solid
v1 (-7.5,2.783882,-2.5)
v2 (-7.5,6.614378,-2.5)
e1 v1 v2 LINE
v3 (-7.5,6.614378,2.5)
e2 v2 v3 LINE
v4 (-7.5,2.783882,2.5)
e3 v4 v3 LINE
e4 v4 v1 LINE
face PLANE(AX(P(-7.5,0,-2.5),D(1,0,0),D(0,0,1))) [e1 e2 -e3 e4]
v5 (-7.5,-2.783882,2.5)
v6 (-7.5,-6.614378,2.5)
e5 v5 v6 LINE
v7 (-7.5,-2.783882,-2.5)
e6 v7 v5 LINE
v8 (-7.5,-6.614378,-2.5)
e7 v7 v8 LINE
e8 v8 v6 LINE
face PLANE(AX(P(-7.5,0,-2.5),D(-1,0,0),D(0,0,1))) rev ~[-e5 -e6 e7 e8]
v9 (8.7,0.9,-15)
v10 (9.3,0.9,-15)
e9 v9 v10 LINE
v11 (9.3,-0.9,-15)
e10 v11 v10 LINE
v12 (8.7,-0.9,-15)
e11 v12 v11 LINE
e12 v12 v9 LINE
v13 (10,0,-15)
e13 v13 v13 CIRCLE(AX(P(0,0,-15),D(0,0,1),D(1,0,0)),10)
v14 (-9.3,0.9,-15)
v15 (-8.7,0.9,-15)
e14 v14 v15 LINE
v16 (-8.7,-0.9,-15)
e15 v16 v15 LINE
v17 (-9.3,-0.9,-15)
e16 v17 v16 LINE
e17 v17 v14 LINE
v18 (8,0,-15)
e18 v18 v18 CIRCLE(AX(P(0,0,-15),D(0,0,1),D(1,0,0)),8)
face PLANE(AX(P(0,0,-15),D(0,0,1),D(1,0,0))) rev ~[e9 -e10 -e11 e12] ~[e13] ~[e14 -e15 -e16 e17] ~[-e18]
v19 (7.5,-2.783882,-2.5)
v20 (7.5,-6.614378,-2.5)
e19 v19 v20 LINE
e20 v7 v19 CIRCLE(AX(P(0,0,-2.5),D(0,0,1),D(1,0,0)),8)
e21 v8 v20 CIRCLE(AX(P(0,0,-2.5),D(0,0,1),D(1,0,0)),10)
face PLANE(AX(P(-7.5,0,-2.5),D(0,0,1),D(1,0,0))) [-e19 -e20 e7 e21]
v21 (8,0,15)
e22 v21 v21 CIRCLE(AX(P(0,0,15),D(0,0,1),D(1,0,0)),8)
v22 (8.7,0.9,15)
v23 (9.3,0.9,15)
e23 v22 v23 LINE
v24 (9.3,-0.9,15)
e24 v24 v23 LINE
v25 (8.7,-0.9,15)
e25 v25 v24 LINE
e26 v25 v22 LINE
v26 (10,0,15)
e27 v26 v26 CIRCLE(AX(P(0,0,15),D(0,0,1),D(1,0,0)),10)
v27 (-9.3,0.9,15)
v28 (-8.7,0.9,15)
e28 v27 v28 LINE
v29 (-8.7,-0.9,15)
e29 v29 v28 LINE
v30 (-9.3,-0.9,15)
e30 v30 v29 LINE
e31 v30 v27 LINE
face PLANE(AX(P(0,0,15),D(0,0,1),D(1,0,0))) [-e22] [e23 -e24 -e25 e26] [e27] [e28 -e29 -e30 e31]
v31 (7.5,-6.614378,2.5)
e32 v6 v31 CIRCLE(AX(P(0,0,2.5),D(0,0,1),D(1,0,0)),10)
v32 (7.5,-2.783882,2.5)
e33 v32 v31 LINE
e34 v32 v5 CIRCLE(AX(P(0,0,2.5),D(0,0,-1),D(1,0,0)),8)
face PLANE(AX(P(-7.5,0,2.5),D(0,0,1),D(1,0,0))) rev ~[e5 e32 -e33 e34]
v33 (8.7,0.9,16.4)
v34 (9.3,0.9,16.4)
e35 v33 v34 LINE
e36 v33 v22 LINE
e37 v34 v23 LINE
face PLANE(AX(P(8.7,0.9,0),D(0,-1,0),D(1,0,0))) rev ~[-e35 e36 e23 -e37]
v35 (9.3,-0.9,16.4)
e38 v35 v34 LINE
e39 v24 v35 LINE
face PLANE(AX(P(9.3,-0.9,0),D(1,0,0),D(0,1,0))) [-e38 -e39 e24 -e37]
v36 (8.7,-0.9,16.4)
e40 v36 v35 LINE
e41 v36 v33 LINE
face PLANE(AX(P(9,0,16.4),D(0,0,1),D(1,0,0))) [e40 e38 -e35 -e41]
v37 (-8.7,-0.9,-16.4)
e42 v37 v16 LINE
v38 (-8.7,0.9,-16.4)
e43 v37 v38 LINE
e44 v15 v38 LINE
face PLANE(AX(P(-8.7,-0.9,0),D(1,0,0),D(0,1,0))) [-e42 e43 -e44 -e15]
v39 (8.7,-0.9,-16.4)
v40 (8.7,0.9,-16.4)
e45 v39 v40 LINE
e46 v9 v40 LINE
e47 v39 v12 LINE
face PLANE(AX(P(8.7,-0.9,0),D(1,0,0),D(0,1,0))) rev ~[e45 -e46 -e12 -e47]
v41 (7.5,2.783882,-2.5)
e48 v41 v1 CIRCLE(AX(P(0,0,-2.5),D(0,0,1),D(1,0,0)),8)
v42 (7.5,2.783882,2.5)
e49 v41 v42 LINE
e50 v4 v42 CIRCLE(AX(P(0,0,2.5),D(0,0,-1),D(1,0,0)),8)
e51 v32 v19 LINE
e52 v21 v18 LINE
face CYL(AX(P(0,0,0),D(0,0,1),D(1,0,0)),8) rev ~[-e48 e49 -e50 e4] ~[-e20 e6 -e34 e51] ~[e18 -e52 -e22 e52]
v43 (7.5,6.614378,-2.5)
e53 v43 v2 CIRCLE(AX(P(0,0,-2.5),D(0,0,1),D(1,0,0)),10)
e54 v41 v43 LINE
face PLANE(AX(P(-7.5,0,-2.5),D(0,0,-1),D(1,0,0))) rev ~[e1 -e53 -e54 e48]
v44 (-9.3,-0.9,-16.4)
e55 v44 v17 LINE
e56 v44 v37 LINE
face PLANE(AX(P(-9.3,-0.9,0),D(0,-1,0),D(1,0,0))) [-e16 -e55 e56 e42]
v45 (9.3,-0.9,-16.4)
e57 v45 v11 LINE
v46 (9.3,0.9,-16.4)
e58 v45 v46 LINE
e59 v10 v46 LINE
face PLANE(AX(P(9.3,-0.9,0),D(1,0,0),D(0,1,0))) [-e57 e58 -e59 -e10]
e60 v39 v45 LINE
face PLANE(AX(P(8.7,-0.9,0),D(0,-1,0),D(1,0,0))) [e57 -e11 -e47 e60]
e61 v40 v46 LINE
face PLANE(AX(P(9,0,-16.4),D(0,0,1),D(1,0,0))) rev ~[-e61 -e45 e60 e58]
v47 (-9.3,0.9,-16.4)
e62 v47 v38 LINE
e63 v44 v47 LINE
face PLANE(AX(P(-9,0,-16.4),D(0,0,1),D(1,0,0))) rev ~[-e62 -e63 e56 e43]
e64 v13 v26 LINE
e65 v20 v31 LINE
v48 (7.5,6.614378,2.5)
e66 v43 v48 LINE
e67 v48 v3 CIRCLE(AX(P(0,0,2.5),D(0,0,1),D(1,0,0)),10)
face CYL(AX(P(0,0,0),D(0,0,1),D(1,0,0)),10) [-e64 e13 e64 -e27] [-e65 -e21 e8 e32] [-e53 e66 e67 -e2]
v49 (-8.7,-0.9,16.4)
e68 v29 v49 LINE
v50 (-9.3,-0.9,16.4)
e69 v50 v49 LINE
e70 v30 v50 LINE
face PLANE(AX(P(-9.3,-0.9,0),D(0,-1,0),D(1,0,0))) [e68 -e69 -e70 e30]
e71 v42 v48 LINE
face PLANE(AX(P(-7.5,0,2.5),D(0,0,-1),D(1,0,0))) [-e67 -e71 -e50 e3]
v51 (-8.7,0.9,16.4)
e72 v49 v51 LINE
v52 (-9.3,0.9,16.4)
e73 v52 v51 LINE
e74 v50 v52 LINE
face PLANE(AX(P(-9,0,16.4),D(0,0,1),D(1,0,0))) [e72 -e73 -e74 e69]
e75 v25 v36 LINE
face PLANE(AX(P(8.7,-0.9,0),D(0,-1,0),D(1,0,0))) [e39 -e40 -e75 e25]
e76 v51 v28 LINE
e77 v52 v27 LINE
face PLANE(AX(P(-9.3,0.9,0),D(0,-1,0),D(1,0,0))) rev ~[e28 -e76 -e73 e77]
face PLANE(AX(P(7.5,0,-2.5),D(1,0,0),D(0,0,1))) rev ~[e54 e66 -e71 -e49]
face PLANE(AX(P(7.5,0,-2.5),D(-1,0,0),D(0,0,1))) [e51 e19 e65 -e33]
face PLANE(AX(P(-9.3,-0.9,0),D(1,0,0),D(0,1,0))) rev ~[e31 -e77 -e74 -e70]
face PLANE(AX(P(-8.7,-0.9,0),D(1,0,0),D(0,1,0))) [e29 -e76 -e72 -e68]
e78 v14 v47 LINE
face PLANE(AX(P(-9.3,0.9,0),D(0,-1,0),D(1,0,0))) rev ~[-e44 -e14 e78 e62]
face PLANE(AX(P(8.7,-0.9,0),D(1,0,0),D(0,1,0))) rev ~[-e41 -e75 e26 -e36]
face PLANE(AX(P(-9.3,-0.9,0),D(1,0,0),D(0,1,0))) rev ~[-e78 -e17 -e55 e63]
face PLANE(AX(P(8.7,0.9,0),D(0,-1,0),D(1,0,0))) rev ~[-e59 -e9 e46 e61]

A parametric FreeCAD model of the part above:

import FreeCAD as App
import Part
import Sketcher

doc = App.newDocument("Part")
body = doc.addObject("PartDesign::Body", "Body")

# Sketch on XY plane
sketch1 = body.newObject("Sketcher::SketchObject", "Sketch")
sketch1.AttachmentSupport = (doc.getObject("XY_Plane"), [""])
sketch1.MapMode = "FlatFace"
sketch1.addGeometry(Part.LineSegment(App.Vector(-9.3, 0.9, 0), App.Vector(-9.3, -0.9, 0)), False)
sketch1.addGeometry(Part.LineSegment(App.Vector(-9.3, -0.9, 0), App.Vector(-8.7, -0.9, 0)), False)
sketch1.addGeometry(Part.LineSegment(App.Vector(-8.7, -0.9, 0), App.Vector(-8.7, 0.9, 0)), False)
sketch1.addGeometry(Part.LineSegment(App.Vector(-8.7, 0.9, 0), App.Vector(-9.3, 0.9, 0)), False)
sketch1.addConstraint(Sketcher.Constraint("Coincident", 0, 2, 1, 1))
sketch1.addConstraint(Sketcher.Constraint("Coincident", 1, 2, 2, 1))
sketch1.addConstraint(Sketcher.Constraint("Coincident", 2, 2, 3, 1))
sketch1.addConstraint(Sketcher.Constraint("Coincident", 3, 2, 0, 1))
sketch1.addConstraint(Sketcher.Constraint("Vertical", 0))
sketch1.addConstraint(Sketcher.Constraint("Horizontal", 1))
sketch1.addConstraint(Sketcher.Constraint("Vertical", 2))
sketch1.addConstraint(Sketcher.Constraint("Horizontal", 3))
sketch1.addConstraint(Sketcher.Constraint("DistanceX", 1, 1, 1, 2, 0.6))
sketch1.addConstraint(Sketcher.Constraint("DistanceY", 0, 2, 0, 1, 1.8))
sketch1.addConstraint(Sketcher.Constraint("DistanceX", 0, 2, -1, 1, 9.3))
sketch1.addConstraint(Sketcher.Constraint("DistanceY", 0, 2, -1, 1, 0.9))
pad1 = body.newObject("PartDesign::Pad", "Pad")
pad1.Profile = sketch1
pad1.Type = "TwoLengths"
pad1.Length = 16.4
pad1.Length2 = 16.4
body2 = doc.addObject("PartDesign::Body", "Body001")

# Sketch on XY plane
sketch2 = body2.newObject("Sketcher::SketchObject", "Sketch001")
sketch2.AttachmentSupport = (doc.getObject("XY_Plane001"), [""])
sketch2.MapMode = "FlatFace"
sketch2.addGeometry(Part.LineSegment(App.Vector(8.7, 0.9, 0), App.Vector(8.7, -0.9, 0)), False)
sketch2.addGeometry(Part.LineSegment(App.Vector(8.7, -0.9, 0), App.Vector(9.3, -0.9, 0)), False)
sketch2.addGeometry(Part.LineSegment(App.Vector(9.3, -0.9, 0), App.Vector(9.3, 0.9, 0)), False)
sketch2.addGeometry(Part.LineSegment(App.Vector(9.3, 0.9, 0), App.Vector(8.7, 0.9, 0)), False)
sketch2.addConstraint(Sketcher.Constraint("Coincident", 0, 2, 1, 1))
sketch2.addConstraint(Sketcher.Constraint("Coincident", 1, 2, 2, 1))
sketch2.addConstraint(Sketcher.Constraint("Coincident", 2, 2, 3, 1))
sketch2.addConstraint(Sketcher.Constraint("Coincident", 3, 2, 0, 1))
sketch2.addConstraint(Sketcher.Constraint("Vertical", 0))
sketch2.addConstraint(Sketcher.Constraint("Horizontal", 1))
sketch2.addConstraint(Sketcher.Constraint("Vertical", 2))
sketch2.addConstraint(Sketcher.Constraint("Horizontal", 3))
sketch2.addConstraint(Sketcher.Constraint("DistanceX", 1, 1, 1, 2, 0.6))
sketch2.addConstraint(Sketcher.Constraint("DistanceY", 0, 2, 0, 1, 1.8))
sketch2.addConstraint(Sketcher.Constraint("DistanceX", -1, 1, 0, 2, 8.7))
sketch2.addConstraint(Sketcher.Constraint("DistanceY", 0, 2, -1, 1, 0.9))
pad2 = body2.newObject("PartDesign::Pad", "Pad001")
pad2.Profile = sketch2
pad2.Type = "TwoLengths"
pad2.Length = 16.4
pad2.Length2 = 16.4
body.AllowCompound = True
doc.recompute()

boolean = body.newObject("PartDesign::Boolean", "Boolean")
boolean.Type = "Fuse"
boolean.addObjects([body2])

# Sketch on XY plane
sketch3 = body.newObject("Sketcher::SketchObject", "Sketch002")
sketch3.AttachmentSupport = (doc.getObject("XY_Plane"), [""])
sketch3.MapMode = "FlatFace"
sketch3.addGeometry(Part.Circle(App.Vector(0, 0, 0), App.Vector(0, 0, 1), 10), False)
sketch3.addGeometry(Part.LineSegment(App.Vector(-8.7, -0.9, 0), App.Vector(-9.3, -0.9, 0)), False)
sketch3.addGeometry(Part.LineSegment(App.Vector(-9.3, -0.9, 0), App.Vector(-9.3, 0.9, 0)), False)
sketch3.addGeometry(Part.LineSegment(App.Vector(-9.3, 0.9, 0), App.Vector(-8.7, 0.9, 0)), False)
sketch3.addGeometry(Part.LineSegment(App.Vector(-8.7, 0.9, 0), App.Vector(-8.7, -0.9, 0)), False)
sketch3.addGeometry(Part.LineSegment(App.Vector(9.3, -0.9, 0), App.Vector(8.7, -0.9, 0)), False)
sketch3.addGeometry(Part.LineSegment(App.Vector(8.7, -0.9, 0), App.Vector(8.7, 0.9, 0)), False)
sketch3.addGeometry(Part.LineSegment(App.Vector(8.7, 0.9, 0), App.Vector(9.3, 0.9, 0)), False)
sketch3.addGeometry(Part.LineSegment(App.Vector(9.3, 0.9, 0), App.Vector(9.3, -0.9, 0)), False)
sketch3.addGeometry(Part.Circle(App.Vector(0, 0, 0), App.Vector(0, 0, 1), 8), False)
sketch3.addConstraint(Sketcher.Constraint("Coincident", 1, 2, 2, 1))
sketch3.addConstraint(Sketcher.Constraint("Coincident", 2, 2, 3, 1))
sketch3.addConstraint(Sketcher.Constraint("Coincident", 3, 2, 4, 1))
sketch3.addConstraint(Sketcher.Constraint("Coincident", 4, 2, 1, 1))
sketch3.addConstraint(Sketcher.Constraint("Coincident", 5, 2, 6, 1))
sketch3.addConstraint(Sketcher.Constraint("Coincident", 6, 2, 7, 1))
sketch3.addConstraint(Sketcher.Constraint("Coincident", 7, 2, 8, 1))
sketch3.addConstraint(Sketcher.Constraint("Coincident", 8, 2, 5, 1))
sketch3.addConstraint(Sketcher.Constraint("Horizontal", 1))
sketch3.addConstraint(Sketcher.Constraint("Vertical", 2))
sketch3.addConstraint(Sketcher.Constraint("Horizontal", 3))
sketch3.addConstraint(Sketcher.Constraint("Vertical", 4))
sketch3.addConstraint(Sketcher.Constraint("Horizontal", 5))
sketch3.addConstraint(Sketcher.Constraint("Vertical", 6))
sketch3.addConstraint(Sketcher.Constraint("Horizontal", 7))
sketch3.addConstraint(Sketcher.Constraint("Vertical", 8))
sketch3.addConstraint(Sketcher.Constraint("Coincident", 0, 3, -1, 1))
sketch3.addConstraint(Sketcher.Constraint("Coincident", 9, 3, -1, 1))
sketch3.addConstraint(Sketcher.Constraint("Symmetric", 3, 2, 5, 2, -1, 1))
sketch3.addConstraint(Sketcher.Constraint("Symmetric", 1, 2, 7, 2, -1, 1))
sketch3.addConstraint(Sketcher.Constraint("Horizontal", 4, 2, 5, 2))
sketch3.addConstraint(Sketcher.Constraint("Diameter", 0, 20.0))
sketch3.addConstraint(Sketcher.Constraint("Diameter", 9, 16.0))
sketch3.addConstraint(Sketcher.Constraint("DistanceX", 1, 2, 1, 1, 0.6))
sketch3.addConstraint(Sketcher.Constraint("DistanceY", 2, 1, 2, 2, 1.8))
sketch3.addConstraint(Sketcher.Constraint("DistanceX", 1, 2, 5, 2, 18.0))
pad3 = body.newObject("PartDesign::Pad", "Pad002")
pad3.Profile = sketch3
pad3.Type = "TwoLengths"
pad3.Length = 15
pad3.Length2 = 15

# Sketch on XZ plane
sketch4 = body.newObject("Sketcher::SketchObject", "Sketch003")
sketch4.AttachmentSupport = (doc.getObject("XZ_Plane"), [""])
sketch4.MapMode = "FlatFace"
sketch4.addGeometry(Part.LineSegment(App.Vector(-7.5, 2.5, 0), App.Vector(-7.5, -2.5, 0)), False)
sketch4.addGeometry(Part.LineSegment(App.Vector(-7.5, -2.5, 0), App.Vector(7.5, -2.5, 0)), False)
sketch4.addGeometry(Part.LineSegment(App.Vector(7.5, -2.5, 0), App.Vector(7.5, 2.5, 0)), False)
sketch4.addGeometry(Part.LineSegment(App.Vector(7.5, 2.5, 0), App.Vector(-7.5, 2.5, 0)), False)
sketch4.addConstraint(Sketcher.Constraint("Coincident", 0, 2, 1, 1))
sketch4.addConstraint(Sketcher.Constraint("Coincident", 1, 2, 2, 1))
sketch4.addConstraint(Sketcher.Constraint("Coincident", 2, 2, 3, 1))
sketch4.addConstraint(Sketcher.Constraint("Coincident", 3, 2, 0, 1))
sketch4.addConstraint(Sketcher.Constraint("Vertical", 0))
sketch4.addConstraint(Sketcher.Constraint("Horizontal", 1))
sketch4.addConstraint(Sketcher.Constraint("Vertical", 2))
sketch4.addConstraint(Sketcher.Constraint("Horizontal", 3))
sketch4.addConstraint(Sketcher.Constraint("Symmetric", 0, 2, 2, 2, -1, 1))
sketch4.addConstraint(Sketcher.Constraint("DistanceX", 1, 1, 1, 2, 15.0))
sketch4.addConstraint(Sketcher.Constraint("DistanceY", 0, 2, 0, 1, 5.0))
pocket1 = body.newObject("PartDesign::Pocket", "Pocket")
pocket1.Profile = sketch4
pocket1.Type = "ThroughAll"
pocket1.Midplane = True

doc.recompute()
